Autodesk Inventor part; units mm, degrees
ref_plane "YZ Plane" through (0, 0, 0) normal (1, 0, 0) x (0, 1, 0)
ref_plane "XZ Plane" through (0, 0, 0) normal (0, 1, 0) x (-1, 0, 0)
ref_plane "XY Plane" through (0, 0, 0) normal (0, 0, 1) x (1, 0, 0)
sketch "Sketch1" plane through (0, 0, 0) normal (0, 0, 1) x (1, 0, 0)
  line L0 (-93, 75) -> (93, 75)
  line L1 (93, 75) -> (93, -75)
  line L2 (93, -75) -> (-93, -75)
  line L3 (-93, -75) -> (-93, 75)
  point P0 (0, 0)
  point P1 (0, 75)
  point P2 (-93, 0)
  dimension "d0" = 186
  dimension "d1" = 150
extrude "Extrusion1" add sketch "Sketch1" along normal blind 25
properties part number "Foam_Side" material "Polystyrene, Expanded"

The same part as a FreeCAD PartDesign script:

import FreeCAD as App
import Part
import Sketcher
Q = App.Units.Quantity


def add_polygon(sketch, points):
    """Adds a closed chain of lines whose ends are joined by coincident constraints."""
    first, n = sketch.GeometryCount, len(points)
    for a, b in zip(points, points[1:] + points[:1]):
        sketch.addGeometry(Part.LineSegment(App.Vector(*a, 0), App.Vector(*b, 0)), False)
    for i in range(n):
        sketch.addConstraint(Sketcher.Constraint("Coincident", first + i, 2, first + (i + 1) % n, 1))

doc = App.newDocument("Part")
body = doc.addObject("PartDesign::Body", "Body")

sketch1 = body.newObject("Sketcher::SketchObject", "Sketch")
sketch1.AttachmentSupport = (doc.getObject("XY_Plane"), [""])
sketch1.MapMode = "FlatFace"
add_polygon(sketch1, [(93, 75), (-93, 75), (-93, -75), (93, -75)])
sketch1.addConstraint(Sketcher.Constraint("Horizontal", 0))
sketch1.addConstraint(Sketcher.Constraint("Vertical", 1))
sketch1.addConstraint(Sketcher.Constraint("Horizontal", 2))
sketch1.addConstraint(Sketcher.Constraint("Vertical", 3))
sketch1.addConstraint(Sketcher.Constraint("Symmetric", 0, 2, 2, 2, -1, 1))
sketch1.addConstraint(Sketcher.Constraint("DistanceX", 0, 2, 0, 1, Q("186 mm")))
sketch1.addConstraint(Sketcher.Constraint("DistanceY", 1, 2, 1, 1, Q("150 mm")))
pad1 = body.newObject("PartDesign::Pad", "Pad")
pad1.Profile = sketch1
pad1.Length = 25

doc.recompute()
